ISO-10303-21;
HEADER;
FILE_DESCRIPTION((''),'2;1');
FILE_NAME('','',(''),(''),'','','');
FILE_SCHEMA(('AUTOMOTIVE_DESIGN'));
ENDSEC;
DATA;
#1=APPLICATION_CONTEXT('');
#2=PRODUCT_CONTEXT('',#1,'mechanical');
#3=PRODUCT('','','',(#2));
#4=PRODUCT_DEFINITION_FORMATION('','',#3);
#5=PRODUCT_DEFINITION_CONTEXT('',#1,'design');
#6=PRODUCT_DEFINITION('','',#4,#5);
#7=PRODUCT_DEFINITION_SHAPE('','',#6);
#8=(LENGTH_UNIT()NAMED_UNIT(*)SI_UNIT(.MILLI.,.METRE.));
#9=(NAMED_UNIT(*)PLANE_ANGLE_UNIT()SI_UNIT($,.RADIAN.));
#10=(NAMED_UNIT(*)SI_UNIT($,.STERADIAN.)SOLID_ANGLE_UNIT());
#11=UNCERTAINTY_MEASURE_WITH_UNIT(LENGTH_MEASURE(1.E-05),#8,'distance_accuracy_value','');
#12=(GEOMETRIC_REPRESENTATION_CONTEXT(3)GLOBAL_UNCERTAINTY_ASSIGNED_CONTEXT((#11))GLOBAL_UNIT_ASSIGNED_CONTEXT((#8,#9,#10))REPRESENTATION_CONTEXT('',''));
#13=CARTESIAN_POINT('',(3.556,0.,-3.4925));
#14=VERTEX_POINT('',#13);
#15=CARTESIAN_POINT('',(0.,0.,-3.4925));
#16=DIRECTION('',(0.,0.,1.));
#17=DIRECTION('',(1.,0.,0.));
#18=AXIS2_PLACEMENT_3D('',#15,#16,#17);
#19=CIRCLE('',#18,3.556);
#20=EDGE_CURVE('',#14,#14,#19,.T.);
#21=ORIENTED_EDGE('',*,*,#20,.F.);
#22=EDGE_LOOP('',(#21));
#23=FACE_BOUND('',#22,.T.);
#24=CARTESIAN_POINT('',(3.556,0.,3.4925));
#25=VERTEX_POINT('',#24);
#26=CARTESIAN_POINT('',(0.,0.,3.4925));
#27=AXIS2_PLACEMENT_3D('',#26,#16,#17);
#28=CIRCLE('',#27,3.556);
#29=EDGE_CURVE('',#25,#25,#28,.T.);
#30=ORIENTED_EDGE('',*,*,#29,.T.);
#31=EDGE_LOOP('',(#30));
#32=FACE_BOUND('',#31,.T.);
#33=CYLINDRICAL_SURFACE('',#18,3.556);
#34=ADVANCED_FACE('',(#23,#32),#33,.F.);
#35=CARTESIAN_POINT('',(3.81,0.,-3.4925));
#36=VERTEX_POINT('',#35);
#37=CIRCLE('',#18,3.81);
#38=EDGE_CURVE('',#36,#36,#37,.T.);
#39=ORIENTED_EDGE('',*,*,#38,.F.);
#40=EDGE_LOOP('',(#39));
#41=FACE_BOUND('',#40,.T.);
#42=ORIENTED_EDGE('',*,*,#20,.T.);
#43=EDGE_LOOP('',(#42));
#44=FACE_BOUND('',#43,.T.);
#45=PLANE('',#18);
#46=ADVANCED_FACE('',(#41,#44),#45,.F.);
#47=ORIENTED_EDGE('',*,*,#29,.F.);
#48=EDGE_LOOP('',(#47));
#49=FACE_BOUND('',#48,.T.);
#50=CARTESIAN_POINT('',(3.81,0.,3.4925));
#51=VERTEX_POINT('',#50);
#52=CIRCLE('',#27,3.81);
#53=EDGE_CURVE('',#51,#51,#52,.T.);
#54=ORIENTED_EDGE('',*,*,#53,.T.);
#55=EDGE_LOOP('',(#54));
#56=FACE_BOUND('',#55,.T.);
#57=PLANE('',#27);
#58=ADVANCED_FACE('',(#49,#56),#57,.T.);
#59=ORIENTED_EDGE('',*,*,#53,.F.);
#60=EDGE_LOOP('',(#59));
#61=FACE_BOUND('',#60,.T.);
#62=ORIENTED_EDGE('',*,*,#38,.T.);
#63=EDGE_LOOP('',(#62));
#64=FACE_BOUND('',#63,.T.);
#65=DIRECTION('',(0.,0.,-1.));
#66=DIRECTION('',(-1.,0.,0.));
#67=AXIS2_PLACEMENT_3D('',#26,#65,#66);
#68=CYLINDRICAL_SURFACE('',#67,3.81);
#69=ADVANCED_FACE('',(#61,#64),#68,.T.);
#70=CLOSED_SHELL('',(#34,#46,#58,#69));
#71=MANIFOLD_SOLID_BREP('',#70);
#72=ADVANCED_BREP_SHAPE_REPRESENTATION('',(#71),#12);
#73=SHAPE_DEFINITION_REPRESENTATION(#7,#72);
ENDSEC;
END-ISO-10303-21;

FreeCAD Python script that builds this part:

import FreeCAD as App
import Part
import Sketcher
from FreeCAD import Vector
Q = App.Units.Quantity

doc = App.newDocument("Part")
body = doc.addObject("PartDesign::Body", "Body")

# Sketch on XY plane
sketch1 = doc.addObject("Sketcher::SketchObject", "Sketch")
body.addObject(sketch1)
sketch1.AttachmentSupport = (doc.XY_Plane, [""])
sketch1.MapMode = "FlatFace"
sketch1.addGeometry(Part.Circle(Vector(0, 0, 0), Vector(0, 0, 1), 3.8), False)
sketch1.addConstraint([
    Sketcher.Constraint("Coincident", 0, 3, -1, 1),
    Sketcher.Constraint("Diameter", 0, Q("0.3 in")),
])
pad1 = doc.addObject("PartDesign::Pad", "Pad")
body.addObject(pad1)
pad1.Profile = sketch1
pad1.Length = Q("0.275 in")
pad1.Midplane = True

# Sketch on XY plane
sketch2 = doc.addObject("Sketcher::SketchObject", "Sketch001")
body.addObject(sketch2)
sketch2.AttachmentSupport = (doc.XY_Plane, [""])
sketch2.MapMode = "FlatFace"
sketch2.AttachmentOffset = App.Placement(Vector(0, 0, 0.1375 * 25.4), App.Rotation())
sketch2.addGeometry(Part.Circle(Vector(0, 0, 0), Vector(0, 0, 1), 3.6), False)
sketch2.addConstraint([
    Sketcher.Constraint("Coincident", 0, 3, -1, 1),
    Sketcher.Constraint("Diameter", 0, Q("0.28 in")),
])
pocket1 = doc.addObject("PartDesign::Pocket", "Pocket")
body.addObject(pocket1)
pocket1.Profile = sketch2
pocket1.Type = "ThroughAll"

doc.recompute()
